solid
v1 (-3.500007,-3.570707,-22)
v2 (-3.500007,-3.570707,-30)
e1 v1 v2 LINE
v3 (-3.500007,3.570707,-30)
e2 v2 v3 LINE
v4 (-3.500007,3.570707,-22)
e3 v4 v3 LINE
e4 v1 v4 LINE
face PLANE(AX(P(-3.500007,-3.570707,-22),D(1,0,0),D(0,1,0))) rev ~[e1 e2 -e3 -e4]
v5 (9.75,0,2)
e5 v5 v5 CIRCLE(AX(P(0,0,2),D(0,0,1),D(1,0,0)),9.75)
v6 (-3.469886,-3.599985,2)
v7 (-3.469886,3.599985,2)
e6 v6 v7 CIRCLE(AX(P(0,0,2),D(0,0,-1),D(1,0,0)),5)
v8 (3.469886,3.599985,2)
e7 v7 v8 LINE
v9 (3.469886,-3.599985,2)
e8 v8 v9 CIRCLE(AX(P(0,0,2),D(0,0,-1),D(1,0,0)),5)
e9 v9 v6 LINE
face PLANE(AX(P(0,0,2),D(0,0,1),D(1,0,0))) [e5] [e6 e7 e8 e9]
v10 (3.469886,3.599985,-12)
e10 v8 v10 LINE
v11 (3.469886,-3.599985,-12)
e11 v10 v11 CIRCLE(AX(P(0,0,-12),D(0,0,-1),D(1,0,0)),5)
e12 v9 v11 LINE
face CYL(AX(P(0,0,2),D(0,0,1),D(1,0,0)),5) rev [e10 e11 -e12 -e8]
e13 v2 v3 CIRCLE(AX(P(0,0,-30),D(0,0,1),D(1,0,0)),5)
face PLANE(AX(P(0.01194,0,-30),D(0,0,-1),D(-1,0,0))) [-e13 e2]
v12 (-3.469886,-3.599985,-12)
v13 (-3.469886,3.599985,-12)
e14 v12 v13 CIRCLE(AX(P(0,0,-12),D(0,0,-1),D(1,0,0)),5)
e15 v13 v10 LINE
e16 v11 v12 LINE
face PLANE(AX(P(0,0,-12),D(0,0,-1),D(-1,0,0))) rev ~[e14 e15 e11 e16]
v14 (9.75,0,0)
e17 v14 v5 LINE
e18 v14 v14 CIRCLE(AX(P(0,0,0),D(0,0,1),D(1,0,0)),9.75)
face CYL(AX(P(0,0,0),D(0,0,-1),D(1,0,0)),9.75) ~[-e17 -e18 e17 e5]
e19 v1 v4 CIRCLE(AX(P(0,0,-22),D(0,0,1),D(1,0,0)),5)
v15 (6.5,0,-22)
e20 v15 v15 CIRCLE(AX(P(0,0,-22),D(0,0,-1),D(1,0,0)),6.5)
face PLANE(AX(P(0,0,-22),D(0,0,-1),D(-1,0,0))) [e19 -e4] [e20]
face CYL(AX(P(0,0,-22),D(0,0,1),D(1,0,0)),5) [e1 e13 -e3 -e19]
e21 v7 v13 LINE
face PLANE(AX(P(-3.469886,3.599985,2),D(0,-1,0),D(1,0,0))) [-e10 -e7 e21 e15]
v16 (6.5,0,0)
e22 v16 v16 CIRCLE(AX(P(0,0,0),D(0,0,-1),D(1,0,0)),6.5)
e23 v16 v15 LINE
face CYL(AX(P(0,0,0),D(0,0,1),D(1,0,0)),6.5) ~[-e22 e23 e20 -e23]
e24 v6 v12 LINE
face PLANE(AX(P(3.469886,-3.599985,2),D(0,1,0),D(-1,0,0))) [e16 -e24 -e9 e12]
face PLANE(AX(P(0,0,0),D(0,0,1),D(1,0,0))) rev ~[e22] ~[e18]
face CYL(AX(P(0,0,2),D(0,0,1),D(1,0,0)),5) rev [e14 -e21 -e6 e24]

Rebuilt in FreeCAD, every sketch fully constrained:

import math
import FreeCAD as App
import Part
import Sketcher

V = App.Vector
Q = App.Units.Quantity

doc = App.newDocument("Part")
params = doc.addObject("Spreadsheet::Sheet", "Params")
for row, (alias, value) in enumerate([
    ("sketch1_diameter", "19.5 mm"),
    ("pad1_length", "2 mm"),
    ("sketch2_diameter", "13 mm"),
    ("pad2_length", "22 mm"),
    ("sketch3_radius", "5 mm"),
    ("pad3_length", "8 mm"),
    ("sketch4_radius", "5 mm"),
    ("pocket1_length", "14 mm"),
], start=1):
    params.set(f"A{row}", alias)
    params.set(f"B{row}", "=" + value)
    params.setAlias(f"B{row}", alias)

body = doc.addObject("PartDesign::Body", "Body")

# Sketch on XY plane
sketch1 = doc.addObject("Sketcher::SketchObject", "Sketch")
body.addObject(sketch1)
sketch1.AttachmentSupport = (doc.XY_Plane, [""])
sketch1.MapMode = "FlatFace"
sketch1.addGeometry(Part.Circle(V(0, 0, 0), V(0, 0, 1), 10), False)
sketch1.addConstraint(Sketcher.Constraint("Coincident", 0, 3, -1, 1))
sketch1.addConstraint(Sketcher.Constraint("Diameter", 0, Q("19.5 mm")))
sketch1.setExpression("Constraints[1]", "Params.sketch1_diameter")
pad1 = doc.addObject("PartDesign::Pad", "Pad")
body.addObject(pad1)
pad1.Profile = sketch1
pad1.setExpression("Length", "Params.pad1_length")

# Sketch on XY plane
sketch2 = doc.addObject("Sketcher::SketchObject", "Sketch001")
body.addObject(sketch2)
sketch2.AttachmentSupport = (doc.XY_Plane, [""])
sketch2.MapMode = "FlatFace"
sketch2.addGeometry(Part.Circle(V(0, 0, 0), V(0, 0, 1), 6), False)
sketch2.addConstraint(Sketcher.Constraint("Coincident", 0, 3, -1, 1))
sketch2.addConstraint(Sketcher.Constraint("Diameter", 0, Q("13 mm")))
sketch2.setExpression("Constraints[1]", "Params.sketch2_diameter")
pad2 = doc.addObject("PartDesign::Pad", "Pad001")
body.addObject(pad2)
pad2.Profile = sketch2
pad2.setExpression("Length", "Params.pad2_length")
pad2.Reversed = True

# Sketch on XY plane
sketch3 = doc.addObject("Sketcher::SketchObject", "Sketch002")
body.addObject(sketch3)
sketch3.AttachmentSupport = (doc.XY_Plane, [""])
sketch3.MapMode = "FlatFace"
sketch3.AttachmentOffset = App.Placement(V(0, 0, -22), App.Rotation())
sketch3.addGeometry(Part.ArcOfCircle(Part.Circle(V(0, 0, 0), V(0, 0, 1), 5), math.radians(-134), math.radians(134)), False)
sketch3.addGeometry(Part.LineSegment(V(-3.5, -3.6, 0), V(-3.5, 3.6, 0)), False)
sketch3.addConstraint(Sketcher.Constraint("Coincident", 0, 1, 1, 1))
sketch3.addConstraint(Sketcher.Constraint("Coincident", 1, 2, 0, 2))
sketch3.addConstraint(Sketcher.Constraint("Vertical", 1))
sketch3.addConstraint(Sketcher.Constraint("Coincident", 0, 3, -1, 1))
sketch3.addConstraint(Sketcher.Constraint("Radius", 0, Q("5 mm")))
sketch3.addConstraint(Sketcher.Constraint("DistanceX", 0, 1, -1, 1, Q("3.5 mm")))
sketch3.setExpression("Constraints[4]", "Params.sketch3_radius")
pad3 = doc.addObject("PartDesign::Pad", "Pad002")
body.addObject(pad3)
pad3.Profile = sketch3
pad3.setExpression("Length", "Params.pad3_length")
pad3.Reversed = True

# Sketch on XY plane
sketch4 = doc.addObject("Sketcher::SketchObject", "Sketch003")
body.addObject(sketch4)
sketch4.AttachmentSupport = (doc.XY_Plane, [""])
sketch4.MapMode = "FlatFace"
sketch4.AttachmentOffset = App.Placement(V(0, 0, 2), App.Rotation())
sketch4.addGeometry(Part.LineSegment(V(3, 4, 0), V(-3, 4, 0)), False)
sketch4.addGeometry(Part.ArcOfCircle(Part.Circle(V(0, 0, 0), V(0, 0, 1), 5), math.radians(134), math.radians(226)), False)
sketch4.addGeometry(Part.LineSegment(V(-3, -4, 0), V(3, -4, 0)), False)
sketch4.addGeometry(Part.ArcOfCircle(Part.Circle(V(0, 0, 0), V(0, 0, 1), 5), math.radians(-46), math.radians(46)), False)
sketch4.addConstraint(Sketcher.Constraint("Coincident", 0, 2, 1, 1))
sketch4.addConstraint(Sketcher.Constraint("Coincident", 1, 2, 2, 1))
sketch4.addConstraint(Sketcher.Constraint("Coincident", 2, 2, 3, 1))
sketch4.addConstraint(Sketcher.Constraint("Coincident", 3, 2, 0, 1))
sketch4.addConstraint(Sketcher.Constraint("Horizontal", 0))
sketch4.addConstraint(Sketcher.Constraint("Horizontal", 2))
sketch4.addConstraint(Sketcher.Constraint("Coincident", 1, 3, -1, 1))
sketch4.addConstraint(Sketcher.Constraint("Coincident", 3, 3, -1, 1))
sketch4.addConstraint(Sketcher.Constraint("Equal", 1, 3))
sketch4.addConstraint(Sketcher.Constraint("Vertical", 0, 2, 1, 2))
sketch4.addConstraint(Sketcher.Constraint("Radius", 1, Q("5 mm")))
sketch4.addConstraint(Sketcher.Constraint("DistanceY", -1, 1, 0, 2, Q("3.6 mm")))
sketch4.setExpression("Constraints[10]", "Params.sketch4_radius")
pocket1 = doc.addObject("PartDesign::Pocket", "Pocket")
body.addObject(pocket1)
pocket1.Profile = sketch4
pocket1.setExpression("Length", "Params.pocket1_length")

doc.recompute()
